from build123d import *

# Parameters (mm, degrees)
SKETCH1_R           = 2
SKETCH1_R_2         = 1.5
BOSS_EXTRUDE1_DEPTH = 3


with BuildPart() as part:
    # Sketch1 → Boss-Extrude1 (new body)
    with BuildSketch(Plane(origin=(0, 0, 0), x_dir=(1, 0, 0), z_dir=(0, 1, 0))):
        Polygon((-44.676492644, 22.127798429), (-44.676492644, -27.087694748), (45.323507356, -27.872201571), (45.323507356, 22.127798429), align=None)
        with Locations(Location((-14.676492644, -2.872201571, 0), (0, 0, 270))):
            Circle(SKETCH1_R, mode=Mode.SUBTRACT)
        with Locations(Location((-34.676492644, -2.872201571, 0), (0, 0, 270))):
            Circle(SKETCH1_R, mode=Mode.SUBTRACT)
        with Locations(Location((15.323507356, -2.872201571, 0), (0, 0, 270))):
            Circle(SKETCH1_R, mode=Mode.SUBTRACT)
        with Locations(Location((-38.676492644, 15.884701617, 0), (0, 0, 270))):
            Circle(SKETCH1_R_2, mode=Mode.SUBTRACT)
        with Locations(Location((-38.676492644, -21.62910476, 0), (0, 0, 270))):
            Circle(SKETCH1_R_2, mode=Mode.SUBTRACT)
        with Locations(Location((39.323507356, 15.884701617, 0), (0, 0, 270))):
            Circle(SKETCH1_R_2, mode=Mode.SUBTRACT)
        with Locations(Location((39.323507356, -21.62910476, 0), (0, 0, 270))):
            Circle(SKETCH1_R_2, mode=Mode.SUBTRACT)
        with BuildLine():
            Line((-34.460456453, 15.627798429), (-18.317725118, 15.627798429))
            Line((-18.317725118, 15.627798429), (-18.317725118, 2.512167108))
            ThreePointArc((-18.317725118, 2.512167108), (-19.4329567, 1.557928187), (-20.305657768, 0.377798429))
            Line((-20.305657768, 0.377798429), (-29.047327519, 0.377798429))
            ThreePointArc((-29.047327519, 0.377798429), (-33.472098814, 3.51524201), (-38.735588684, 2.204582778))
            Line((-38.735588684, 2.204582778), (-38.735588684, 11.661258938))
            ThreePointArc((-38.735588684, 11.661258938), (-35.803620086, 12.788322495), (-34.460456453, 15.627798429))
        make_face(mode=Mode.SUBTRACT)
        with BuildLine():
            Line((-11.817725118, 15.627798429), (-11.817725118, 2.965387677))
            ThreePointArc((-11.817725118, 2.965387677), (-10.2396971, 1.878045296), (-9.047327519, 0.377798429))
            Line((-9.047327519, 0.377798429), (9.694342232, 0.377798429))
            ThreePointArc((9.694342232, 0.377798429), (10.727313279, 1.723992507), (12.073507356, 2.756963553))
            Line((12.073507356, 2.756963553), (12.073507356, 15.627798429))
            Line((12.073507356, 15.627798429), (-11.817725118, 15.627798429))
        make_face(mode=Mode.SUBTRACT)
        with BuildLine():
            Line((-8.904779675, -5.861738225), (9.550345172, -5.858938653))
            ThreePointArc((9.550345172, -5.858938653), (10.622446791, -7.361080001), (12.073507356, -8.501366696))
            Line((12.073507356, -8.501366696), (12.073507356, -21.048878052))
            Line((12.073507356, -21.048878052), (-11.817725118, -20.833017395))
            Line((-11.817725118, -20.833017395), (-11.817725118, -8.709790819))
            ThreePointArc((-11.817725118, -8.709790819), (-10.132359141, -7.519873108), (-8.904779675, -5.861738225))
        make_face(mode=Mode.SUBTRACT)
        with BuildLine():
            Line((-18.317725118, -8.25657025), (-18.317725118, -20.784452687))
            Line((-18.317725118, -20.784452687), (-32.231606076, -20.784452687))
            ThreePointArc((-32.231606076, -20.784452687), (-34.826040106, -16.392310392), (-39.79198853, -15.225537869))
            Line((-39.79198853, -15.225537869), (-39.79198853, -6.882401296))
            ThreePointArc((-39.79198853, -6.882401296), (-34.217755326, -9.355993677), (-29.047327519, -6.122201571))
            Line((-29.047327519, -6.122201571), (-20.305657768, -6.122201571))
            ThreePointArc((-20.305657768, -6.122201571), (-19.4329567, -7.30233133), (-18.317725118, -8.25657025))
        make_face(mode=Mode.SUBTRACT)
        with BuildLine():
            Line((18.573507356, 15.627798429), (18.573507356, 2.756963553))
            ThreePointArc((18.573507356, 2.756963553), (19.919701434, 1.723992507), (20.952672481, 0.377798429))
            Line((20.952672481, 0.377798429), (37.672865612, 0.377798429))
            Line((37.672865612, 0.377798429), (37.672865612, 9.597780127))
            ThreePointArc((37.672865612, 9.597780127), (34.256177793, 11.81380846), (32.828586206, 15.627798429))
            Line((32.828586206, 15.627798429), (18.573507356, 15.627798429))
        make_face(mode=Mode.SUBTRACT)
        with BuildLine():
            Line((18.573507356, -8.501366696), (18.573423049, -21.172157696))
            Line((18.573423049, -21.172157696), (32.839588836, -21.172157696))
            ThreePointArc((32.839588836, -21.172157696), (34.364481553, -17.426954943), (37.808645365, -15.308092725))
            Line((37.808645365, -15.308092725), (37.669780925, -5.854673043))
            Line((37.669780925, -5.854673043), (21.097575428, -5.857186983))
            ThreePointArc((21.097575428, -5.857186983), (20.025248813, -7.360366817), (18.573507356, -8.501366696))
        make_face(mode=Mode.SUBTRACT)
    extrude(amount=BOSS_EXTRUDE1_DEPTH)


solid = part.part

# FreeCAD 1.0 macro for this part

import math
import FreeCAD as App
import Part
import Sketcher
from FreeCAD import Vector

doc = App.newDocument("Part")
body = doc.addObject("PartDesign::Body", "Body")

sketch1 = doc.addObject("Sketcher::SketchObject", "Sketch")
body.addObject(sketch1)
sketch1.AttachmentSupport = (doc.XZ_Plane, [""])
sketch1.MapMode = "FlatFace"
sketch1.addGeometry(Part.LineSegment(Vector(-44.676493, -22.127798, 0), Vector(-44.676493, 27.087695, 0)), False)
sketch1.addGeometry(Part.LineSegment(Vector(-44.676493, 27.087695, 0), Vector(45.323507, 27.872202, 0)), False)
sketch1.addGeometry(Part.LineSegment(Vector(45.323507, 27.872202, 0), Vector(45.323507, -22.127798, 0)), False)
sketch1.addGeometry(Part.LineSegment(Vector(45.323507, -22.127798, 0), Vector(-44.676493, -22.127798, 0)), False)
sketch1.addGeometry(Part.Circle(Vector(-38.676493, 21.629105, 0), Vector(0, 0, 1), 1.5), False)
sketch1.addGeometry(Part.ArcOfCircle(Part.Circle(Vector(-14.676493, 2.872202, 0), Vector(0, 0, 1), 6.5), math.radians(124.068912), math.radians(150)), False)
sketch1.addGeometry(Part.LineSegment(Vector(-18.317725, 8.25657, 0), Vector(-18.317725, 20.784453, 0)), False)
sketch1.addGeometry(Part.LineSegment(Vector(-18.317725, 20.784453, 0), Vector(-32.231606, 20.784453, 0)), False)
sketch1.addGeometry(Part.ArcOfCircle(Part.Circle(Vector(-38.676493, 21.629105, 0), Vector(0, 0, 1), 6.5), math.radians(-99.881717), math.radians(-7.466499)), False)
sketch1.addGeometry(Part.LineSegment(Vector(-39.791989, 15.225538, 0), Vector(-39.791989, 6.882401, 0)), False)
sketch1.addGeometry(Part.ArcOfCircle(Part.Circle(Vector(-34.676493, 2.872202, 0), Vector(0, 0, 1), 6.5), math.radians(30), math.radians(141.905975)), False)
sketch1.addGeometry(Part.LineSegment(Vector(-29.047328, 6.122202, 0), Vector(-20.305658, 6.122202, 0)), False)
sketch1.addGeometry(Part.ArcOfCircle(Part.Circle(Vector(-14.676493, 2.872202, 0), Vector(0, 0, 1), 6.5), math.radians(27.382508), math.radians(63.908216)), False)
sketch1.addGeometry(Part.LineSegment(Vector(-8.90478, 5.861738, 0), Vector(9.550345, 5.858939, 0)), False)
sketch1.addGeometry(Part.ArcOfCircle(Part.Circle(Vector(15.323507, 2.872202, 0), Vector(0, 0, 1), 6.5), math.radians(120), math.radians(152.64528)), False)
sketch1.addGeometry(Part.LineSegment(Vector(12.073507, 8.501367, 0), Vector(12.073507, 21.048878, 0)), False)
sketch1.addGeometry(Part.LineSegment(Vector(12.073507, 21.048878, 0), Vector(-11.817725, 20.833017, 0)), False)
sketch1.addGeometry(Part.LineSegment(Vector(-11.817725, 20.833017, 0), Vector(-11.817725, 8.709791, 0)), False)
sketch1.addGeometry(Part.Circle(Vector(39.323507, 21.629105, 0), Vector(0, 0, 1), 1.5), False)
sketch1.addGeometry(Part.LineSegment(Vector(18.573423, 21.172158, 0), Vector(18.573507, 8.501367, 0)), False)
sketch1.addGeometry(Part.ArcOfCircle(Part.Circle(Vector(15.323507, 2.872202, 0), Vector(0, 0, 1), 6.5), math.radians(27.337337), math.radians(60)), False)
sketch1.addGeometry(Part.LineSegment(Vector(21.097575, 5.857187, 0), Vector(37.669781, 5.854673, 0)), False)
sketch1.addGeometry(Part.LineSegment(Vector(37.669781, 5.854673, 0), Vector(37.808645, 15.308093, 0)), False)
sketch1.addGeometry(Part.ArcOfCircle(Part.Circle(Vector(39.323507, 21.629105, 0), Vector(0, 0, 1), 6.5), math.radians(-175.968808), math.radians(-103.47704)), False)
sketch1.addGeometry(Part.LineSegment(Vector(32.839589, 21.172158, 0), Vector(18.573423, 21.172158, 0)), False)
sketch1.addGeometry(Part.Circle(Vector(-34.676493, 2.872202, 0), Vector(0, 0, 1), 2), False)
sketch1.addGeometry(Part.Circle(Vector(-14.676493, 2.872202, 0), Vector(0, 0, 1), 2), False)
sketch1.addGeometry(Part.ArcOfCircle(Part.Circle(Vector(-38.676493, -15.884702, 0), Vector(0, 0, 1), 4.223856), math.radians(3.486994), math.radians(90.801652)), False)
sketch1.addGeometry(Part.LineSegment(Vector(-34.460456, -15.627798, 0), Vector(-18.317725, -15.627798, 0)), False)
sketch1.addGeometry(Part.LineSegment(Vector(-18.317725, -15.627798, 0), Vector(-18.317725, -2.512167, 0)), False)
sketch1.addGeometry(Part.ArcOfCircle(Part.Circle(Vector(-14.676493, 2.872202, 0), Vector(0, 0, 1), 6.5), math.radians(-150), math.radians(-124.068912)), False)
sketch1.addGeometry(Part.LineSegment(Vector(-20.305658, -0.377798, 0), Vector(-29.047328, -0.377798, 0)), False)
sketch1.addGeometry(Part.ArcOfCircle(Part.Circle(Vector(-34.676493, 2.872202, 0), Vector(0, 0, 1), 6.5), math.radians(-128.643761), math.radians(-30)), False)
sketch1.addGeometry(Part.LineSegment(Vector(-38.735589, -2.204583, 0), Vector(-38.735589, -11.661259, 0)), False)
sketch1.addGeometry(Part.Circle(Vector(-38.676493, -15.884702, 0), Vector(0, 0, 1), 1.5), False)
sketch1.addGeometry(Part.LineSegment(Vector(-11.817725, -2.965388, 0), Vector(-11.817725, -15.627798, 0)), False)
sketch1.addGeometry(Part.LineSegment(Vector(-11.817725, -15.627798, 0), Vector(12.073507, -15.627798, 0)), False)
sketch1.addGeometry(Part.LineSegment(Vector(12.073507, -15.627798, 0), Vector(12.073507, -2.756964, 0)), False)
sketch1.addGeometry(Part.ArcOfCircle(Part.Circle(Vector(15.323507, 2.872202, 0), Vector(0, 0, 1), 6.5), math.radians(-150), math.radians(-120)), False)
sketch1.addGeometry(Part.LineSegment(Vector(9.694342, -0.377798, 0), Vector(-9.047328, -0.377798, 0)), False)
sketch1.addGeometry(Part.ArcOfCircle(Part.Circle(Vector(-14.676493, 2.872202, 0), Vector(0, 0, 1), 6.5), math.radians(-63.908216), math.radians(-30)), False)
sketch1.addGeometry(Part.Circle(Vector(15.323507, 2.872202, 0), Vector(0, 0, 1), 2), False)
sketch1.addGeometry(Part.LineSegment(Vector(18.573507, -2.756964, 0), Vector(18.573507, -15.627798, 0)), False)
sketch1.addGeometry(Part.LineSegment(Vector(18.573507, -15.627798, 0), Vector(32.828586, -15.627798, 0)), False)
sketch1.addGeometry(Part.ArcOfCircle(Part.Circle(Vector(39.323507, -15.884702, 0), Vector(0, 0, 1), 6.5), math.radians(104.711074), math.radians(177.734876)), False)
sketch1.addGeometry(Part.LineSegment(Vector(37.672866, -9.59778, 0), Vector(37.672866, -0.377798, 0)), False)
sketch1.addGeometry(Part.LineSegment(Vector(37.672866, -0.377798, 0), Vector(20.952672, -0.377798, 0)), False)
sketch1.addGeometry(Part.ArcOfCircle(Part.Circle(Vector(15.323507, 2.872202, 0), Vector(0, 0, 1), 6.5), math.radians(-60), math.radians(-30)), False)
sketch1.addGeometry(Part.Circle(Vector(39.323507, -15.884702, 0), Vector(0, 0, 1), 1.5), False)
sketch1.addConstraint(Sketcher.Constraint("Coincident", 0, 2, 1, 1))
sketch1.addConstraint(Sketcher.Constraint("Coincident", 1, 2, 2, 1))
sketch1.addConstraint(Sketcher.Constraint("Coincident", 2, 2, 3, 1))
sketch1.addConstraint(Sketcher.Constraint("Coincident", 3, 2, 0, 1))
sketch1.addConstraint(Sketcher.Constraint("Coincident", 5, 1, 6, 1))
sketch1.addConstraint(Sketcher.Constraint("Coincident", 6, 2, 7, 1))
sketch1.addConstraint(Sketcher.Constraint("Coincident", 7, 2, 8, 2))
sketch1.addConstraint(Sketcher.Constraint("Coincident", 8, 1, 9, 1))
sketch1.addConstraint(Sketcher.Constraint("Coincident", 9, 2, 10, 2))
sketch1.addConstraint(Sketcher.Constraint("Coincident", 10, 1, 11, 1))
sketch1.addConstraint(Sketcher.Constraint("Coincident", 11, 2, 5, 2))
sketch1.addConstraint(Sketcher.Constraint("Coincident", 12, 1, 13, 1))
sketch1.addConstraint(Sketcher.Constraint("Coincident", 13, 2, 14, 2))
sketch1.addConstraint(Sketcher.Constraint("Coincident", 14, 1, 15, 1))
sketch1.addConstraint(Sketcher.Constraint("Coincident", 15, 2, 16, 1))
sketch1.addConstraint(Sketcher.Constraint("Coincident", 16, 2, 17, 1))
sketch1.addConstraint(Sketcher.Constraint("Coincident", 17, 2, 12, 2))
sketch1.addConstraint(Sketcher.Constraint("Coincident", 19, 2, 20, 2))
sketch1.addConstraint(Sketcher.Constraint("Coincident", 20, 1, 21, 1))
sketch1.addConstraint(Sketcher.Constraint("Coincident", 21, 2, 22, 1))
sketch1.addConstraint(Sketcher.Constraint("Coincident", 22, 2, 23, 2))
sketch1.addConstraint(Sketcher.Constraint("Coincident", 23, 1, 24, 1))
sketch1.addConstraint(Sketcher.Constraint("Coincident", 24, 2, 19, 1))
sketch1.addConstraint(Sketcher.Constraint("Coincident", 27, 1, 28, 1))
sketch1.addConstraint(Sketcher.Constraint("Coincident", 28, 2, 29, 1))
sketch1.addConstraint(Sketcher.Constraint("Coincident", 29, 2, 30, 2))
sketch1.addConstraint(Sketcher.Constraint("Coincident", 30, 1, 31, 1))
sketch1.addConstraint(Sketcher.Constraint("Coincident", 31, 2, 32, 2))
sketch1.addConstraint(Sketcher.Constraint("Coincident", 32, 1, 33, 1))
sketch1.addConstraint(Sketcher.Constraint("Coincident", 33, 2, 27, 2))
sketch1.addConstraint(Sketcher.Constraint("Coincident", 35, 2, 36, 1))
sketch1.addConstraint(Sketcher.Constraint("Coincident", 36, 2, 37, 1))
sketch1.addConstraint(Sketcher.Constraint("Coincident", 37, 2, 38, 2))
sketch1.addConstraint(Sketcher.Constraint("Coincident", 38, 1, 39, 1))
sketch1.addConstraint(Sketcher.Constraint("Coincident", 39, 2, 40, 2))
sketch1.addConstraint(Sketcher.Constraint("Coincident", 40, 1, 35, 1))
sketch1.addConstraint(Sketcher.Constraint("Coincident", 42, 2, 43, 1))
sketch1.addConstraint(Sketcher.Constraint("Coincident", 43, 2, 44, 2))
sketch1.addConstraint(Sketcher.Constraint("Coincident", 44, 1, 45, 1))
sketch1.addConstraint(Sketcher.Constraint("Coincident", 45, 2, 46, 1))
sketch1.addConstraint(Sketcher.Constraint("Coincident", 46, 2, 47, 2))
sketch1.addConstraint(Sketcher.Constraint("Coincident", 47, 1, 42, 1))
sketch1.addConstraint(Sketcher.Constraint("Vertical", 0))
sketch1.addConstraint(Sketcher.Constraint("Vertical", 2))
sketch1.addConstraint(Sketcher.Constraint("Horizontal", 3))
sketch1.addConstraint(Sketcher.Constraint("Vertical", 6))
sketch1.addConstraint(Sketcher.Constraint("Horizontal", 7))
sketch1.addConstraint(Sketcher.Constraint("Vertical", 9))
sketch1.addConstraint(Sketcher.Constraint("Horizontal", 11))
sketch1.addConstraint(Sketcher.Constraint("Vertical", 15))
sketch1.addConstraint(Sketcher.Constraint("Vertical", 17))
sketch1.addConstraint(Sketcher.Constraint("Horizontal", 24))
sketch1.addConstraint(Sketcher.Constraint("Horizontal", 28))
sketch1.addConstraint(Sketcher.Constraint("Vertical", 29))
sketch1.addConstraint(Sketcher.Constraint("Horizontal", 31))
sketch1.addConstraint(Sketcher.Constraint("Vertical", 33))
sketch1.addConstraint(Sketcher.Constraint("Vertical", 35))
sketch1.addConstraint(Sketcher.Constraint("Horizontal", 36))
sketch1.addConstraint(Sketcher.Constraint("Vertical", 37))
sketch1.addConstraint(Sketcher.Constraint("Horizontal", 39))
sketch1.addConstraint(Sketcher.Constraint("Vertical", 42))
sketch1.addConstraint(Sketcher.Constraint("Horizontal", 43))
sketch1.addConstraint(Sketcher.Constraint("Vertical", 45))
sketch1.addConstraint(Sketcher.Constraint("Horizontal", 46))
sketch1.addConstraint(Sketcher.Constraint("Coincident", 8, 3, 4, 3))
sketch1.addConstraint(Sketcher.Constraint("Coincident", 12, 3, 5, 3))
sketch1.addConstraint(Sketcher.Constraint("Coincident", 20, 3, 14, 3))
sketch1.addConstraint(Sketcher.Constraint("Coincident", 23, 3, 18, 3))
sketch1.addConstraint(Sketcher.Constraint("Coincident", 25, 3, 10, 3))
sketch1.addConstraint(Sketcher.Constraint("Coincident", 26, 3, 5, 3))
sketch1.addConstraint(Sketcher.Constraint("Coincident", 30, 3, 5, 3))
sketch1.addConstraint(Sketcher.Constraint("Coincident", 32, 3, 10, 3))
sketch1.addConstraint(Sketcher.Constraint("Coincident", 34, 3, 27, 3))
sketch1.addConstraint(Sketcher.Constraint("Coincident", 38, 3, 14, 3))
sketch1.addConstraint(Sketcher.Constraint("Coincident", 40, 3, 5, 3))
sketch1.addConstraint(Sketcher.Constraint("Coincident", 41, 3, 14, 3))
sketch1.addConstraint(Sketcher.Constraint("Coincident", 47, 3, 14, 3))
sketch1.addConstraint(Sketcher.Constraint("Coincident", 48, 3, 44, 3))
sketch1.addConstraint(Sketcher.Constraint("Equal", 5, 8))
sketch1.addConstraint(Sketcher.Constraint("Equal", 8, 10))
sketch1.addConstraint(Sketcher.Constraint("Equal", 10, 12))
sketch1.addConstraint(Sketcher.Constraint("Equal", 12, 14))
sketch1.addConstraint(Sketcher.Constraint("Equal", 4, 18))
sketch1.addConstraint(Sketcher.Constraint("Equal", 14, 20))
sketch1.addConstraint(Sketcher.Constraint("Equal", 20, 23))
sketch1.addConstraint(Sketcher.Constraint("Equal", 25, 26))
sketch1.addConstraint(Sketcher.Constraint("Equal", 23, 30))
sketch1.addConstraint(Sketcher.Constraint("Equal", 30, 32))
sketch1.addConstraint(Sketcher.Constraint("Equal", 18, 34))
sketch1.addConstraint(Sketcher.Constraint("Equal", 32, 38))
sketch1.addConstraint(Sketcher.Constraint("Equal", 38, 40))
sketch1.addConstraint(Sketcher.Constraint("Equal", 26, 41))
sketch1.addConstraint(Sketcher.Constraint("Equal", 40, 44))
sketch1.addConstraint(Sketcher.Constraint("Equal", 44, 47))
sketch1.addConstraint(Sketcher.Constraint("Equal", 34, 48))
sketch1.addConstraint(Sketcher.Constraint("Parallel", 13, 21))
sketch1.addConstraint(Sketcher.Constraint("Horizontal", 5, 3, 10, 3))
sketch1.addConstraint(Sketcher.Constraint("Horizontal", 12, 3, 14, 3))
sketch1.addConstraint(Sketcher.Constraint("Horizontal", 8, 3, 18, 3))
sketch1.addConstraint(Sketcher.Constraint("Horizontal", 34, 3, 44, 3))
sketch1.addConstraint(Sketcher.Constraint("Horizontal", 14, 1, 19, 2))
sketch1.addConstraint(Sketcher.Constraint("Horizontal", 28, 2, 35, 2))
sketch1.addConstraint(Sketcher.Constraint("Horizontal", 31, 2, 38, 1))
sketch1.addConstraint(Sketcher.Constraint("Horizontal", 36, 2, 42, 2))
sketch1.addConstraint(Sketcher.Constraint("Horizontal", 39, 2, 45, 2))
sketch1.addConstraint(Sketcher.Constraint("Horizontal", 37, 2, 47, 1))
sketch1.addConstraint(Sketcher.Constraint("Vertical", 8, 3, 27, 3))
sketch1.addConstraint(Sketcher.Constraint("Vertical", 23, 3, 44, 3))
sketch1.addConstraint(Sketcher.Constraint("Vertical", 6, 2, 28, 2))
sketch1.addConstraint(Sketcher.Constraint("Vertical", 11, 2, 30, 1))
sketch1.addConstraint(Sketcher.Constraint("Vertical", 17, 2, 35, 2))
sketch1.addConstraint(Sketcher.Constraint("Vertical", 15, 2, 36, 2))
sketch1.addConstraint(Sketcher.Constraint("Diameter", 4, 3.0))
sketch1.addConstraint(Sketcher.Constraint("Diameter", 25, 4.0))
sketch1.addConstraint(Sketcher.Constraint("Radius", 5, 6.5))
sketch1.addConstraint(Sketcher.Constraint("DistanceX", 3, 2, 3, 1, 90.0))
sketch1.addConstraint(Sketcher.Constraint("DistanceY", 2, 2, 2, 1, 50.0))
sketch1.addConstraint(Sketcher.Constraint("Radius", 27, 4.223856))
sketch1.addConstraint(Sketcher.Constraint("DistanceX", 7, 2, 7, 1, 13.913881))
sketch1.addConstraint(Sketcher.Constraint("DistanceX", 11, 1, 11, 2, 8.74167))
sketch1.addConstraint(Sketcher.Constraint("DistanceX", 28, 1, 28, 2, 16.142731))
sketch1.addConstraint(Sketcher.Constraint("DistanceX", 39, 2, 39, 1, 18.74167))
sketch1.addConstraint(Sketcher.Constraint("DistanceX", 43, 1, 43, 2, 14.255079))
sketch1.addConstraint(Sketcher.Constraint("DistanceY", 15, 1, 15, 2, 12.547511))
sketch1.addConstraint(Sketcher.Constraint("DistanceY", 29, 1, 29, 2, 13.115631))
sketch1.addConstraint(Sketcher.Constraint("DistanceY", 35, 2, 35, 1, 12.662411))
sketch1.addConstraint(Sketcher.Constraint("DistanceY", 45, 1, 45, 2, 9.219982))
sketch1.addConstraint(Sketcher.Constraint("DistanceY", -1, 1, 5, 3, 2.872202))
sketch1.addConstraint(Sketcher.Constraint("DistanceY", 27, 3, -1, 1, 15.884702))
sketch1.addConstraint(Sketcher.Constraint("DistanceY", -1, 1, 1, 2, 27.872202))
sketch1.addConstraint(Sketcher.Constraint("DistanceY", -1, 1, 9, 2, 6.882401))
sketch1.addConstraint(Sketcher.Constraint("DistanceY", -1, 1, 10, 1, 6.122202))
sketch1.addConstraint(Sketcher.Constraint("DistanceY", 27, 1, -1, 1, 15.627798))
sketch1.addConstraint(Sketcher.Constraint("Distance", 1, 90.003419))
sketch1.addConstraint(Sketcher.Constraint("Distance", 19, 12.670791))
sketch1.addConstraint(Sketcher.Constraint("Distance", 22, 9.45444))
sketch1.addConstraint(Sketcher.Constraint("DistanceX", 24, 2, 24, 1, 14.266166))
sketch1.addConstraint(Sketcher.Constraint("DistanceX", 36, 1, 36, 2, 23.891232))
sketch1.addConstraint(Sketcher.Constraint("DistanceY", 6, 1, 6, 2, 12.527882))
sketch1.addConstraint(Sketcher.Constraint("DistanceY", 17, 2, 17, 1, 12.123227))
sketch1.addConstraint(Sketcher.Constraint("DistanceY", 33, 2, 33, 1, 9.456676))
sketch1.addConstraint(Sketcher.Constraint("DistanceX", 8, 1, -1, 1, 39.791989))
sketch1.addConstraint(Sketcher.Constraint("DistanceX", 12, 1, -1, 1, 8.90478))
sketch1.addConstraint(Sketcher.Constraint("DistanceY", -1, 1, 13, 2, 5.858939))
sketch1.addConstraint(Sketcher.Constraint("DistanceX", -1, 1, 21, 2, 37.669781))
sketch1.addConstraint(Sketcher.Constraint("Distance", 21, 16.572206))
sketch1.addConstraint(Sketcher.Constraint("DistanceX", 0, 2, -1, 1, 44.676493))
pad1 = doc.addObject("PartDesign::Pad", "Pad")
body.addObject(pad1)
pad1.Profile = sketch1
pad1.Length = 3
pad1.Reversed = True

doc.recompute()
